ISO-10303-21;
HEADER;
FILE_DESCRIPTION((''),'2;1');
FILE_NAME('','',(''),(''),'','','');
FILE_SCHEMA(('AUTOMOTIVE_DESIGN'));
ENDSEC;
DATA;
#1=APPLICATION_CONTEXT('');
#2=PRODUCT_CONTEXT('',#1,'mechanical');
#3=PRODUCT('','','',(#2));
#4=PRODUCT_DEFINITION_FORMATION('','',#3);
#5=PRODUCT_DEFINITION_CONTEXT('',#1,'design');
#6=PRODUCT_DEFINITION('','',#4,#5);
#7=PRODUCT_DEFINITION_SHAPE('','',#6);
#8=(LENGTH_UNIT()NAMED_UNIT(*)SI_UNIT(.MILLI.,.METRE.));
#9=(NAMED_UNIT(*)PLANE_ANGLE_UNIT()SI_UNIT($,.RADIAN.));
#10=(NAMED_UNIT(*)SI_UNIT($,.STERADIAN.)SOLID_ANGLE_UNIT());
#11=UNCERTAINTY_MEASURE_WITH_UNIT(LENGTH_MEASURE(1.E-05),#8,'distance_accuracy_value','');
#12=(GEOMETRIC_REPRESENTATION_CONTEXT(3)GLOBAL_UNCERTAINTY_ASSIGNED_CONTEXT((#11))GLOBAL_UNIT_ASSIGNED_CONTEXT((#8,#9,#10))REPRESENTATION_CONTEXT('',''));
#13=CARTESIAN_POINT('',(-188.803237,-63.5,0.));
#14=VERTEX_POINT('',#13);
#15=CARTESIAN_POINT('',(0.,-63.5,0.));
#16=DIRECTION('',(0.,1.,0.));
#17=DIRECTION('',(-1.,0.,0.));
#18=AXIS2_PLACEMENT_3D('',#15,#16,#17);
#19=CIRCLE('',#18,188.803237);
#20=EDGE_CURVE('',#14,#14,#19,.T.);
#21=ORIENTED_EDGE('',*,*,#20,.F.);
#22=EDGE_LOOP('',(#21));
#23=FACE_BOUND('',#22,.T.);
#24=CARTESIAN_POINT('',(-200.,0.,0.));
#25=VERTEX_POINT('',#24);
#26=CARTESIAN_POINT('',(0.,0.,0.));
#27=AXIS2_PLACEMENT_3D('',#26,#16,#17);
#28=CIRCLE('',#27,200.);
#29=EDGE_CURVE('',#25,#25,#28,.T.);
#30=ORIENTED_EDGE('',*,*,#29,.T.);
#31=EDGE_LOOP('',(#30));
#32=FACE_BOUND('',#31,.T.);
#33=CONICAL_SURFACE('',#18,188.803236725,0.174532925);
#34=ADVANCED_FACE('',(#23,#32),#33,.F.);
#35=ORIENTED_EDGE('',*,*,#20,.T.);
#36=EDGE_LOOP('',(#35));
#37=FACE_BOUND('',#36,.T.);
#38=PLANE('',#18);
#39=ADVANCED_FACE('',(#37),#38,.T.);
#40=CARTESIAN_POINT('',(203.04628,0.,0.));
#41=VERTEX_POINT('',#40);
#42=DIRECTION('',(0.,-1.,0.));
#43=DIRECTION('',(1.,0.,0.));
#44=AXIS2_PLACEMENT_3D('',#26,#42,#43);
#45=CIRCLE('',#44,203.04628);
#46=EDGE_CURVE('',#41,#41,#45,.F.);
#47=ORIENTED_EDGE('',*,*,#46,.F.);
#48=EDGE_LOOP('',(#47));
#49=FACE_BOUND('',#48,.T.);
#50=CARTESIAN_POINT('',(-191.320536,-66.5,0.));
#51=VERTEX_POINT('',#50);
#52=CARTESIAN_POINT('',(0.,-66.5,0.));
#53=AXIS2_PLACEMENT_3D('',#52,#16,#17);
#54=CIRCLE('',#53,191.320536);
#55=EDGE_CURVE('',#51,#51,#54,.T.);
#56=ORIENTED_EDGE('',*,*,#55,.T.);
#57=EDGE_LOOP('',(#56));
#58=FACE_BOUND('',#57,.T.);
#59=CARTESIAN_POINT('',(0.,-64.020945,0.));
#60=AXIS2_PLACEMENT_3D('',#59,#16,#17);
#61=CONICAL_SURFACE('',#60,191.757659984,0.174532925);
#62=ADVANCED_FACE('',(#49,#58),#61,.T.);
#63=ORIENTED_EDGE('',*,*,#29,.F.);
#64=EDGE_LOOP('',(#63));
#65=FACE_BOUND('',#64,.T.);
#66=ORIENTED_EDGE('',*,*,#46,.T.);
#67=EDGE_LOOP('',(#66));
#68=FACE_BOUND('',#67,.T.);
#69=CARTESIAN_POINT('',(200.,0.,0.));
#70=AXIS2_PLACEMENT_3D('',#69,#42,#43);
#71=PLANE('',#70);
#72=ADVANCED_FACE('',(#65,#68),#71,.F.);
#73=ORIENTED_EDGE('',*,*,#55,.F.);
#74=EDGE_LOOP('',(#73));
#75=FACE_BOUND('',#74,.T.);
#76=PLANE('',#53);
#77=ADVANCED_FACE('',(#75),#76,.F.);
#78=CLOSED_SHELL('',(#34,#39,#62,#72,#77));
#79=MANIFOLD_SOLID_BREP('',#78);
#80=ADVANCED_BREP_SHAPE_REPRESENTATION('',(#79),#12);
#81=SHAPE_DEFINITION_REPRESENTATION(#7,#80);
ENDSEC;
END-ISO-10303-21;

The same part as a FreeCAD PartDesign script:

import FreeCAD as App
import Part
import Sketcher
Q = App.Units.Quantity


def faces_at(feature, points):
    """Names of the faces that lie closest to the given points."""
    faces = feature.Shape.Faces
    near = lambda p: min(range(len(faces)), key=lambda i: faces[i].distToShape(Part.Vertex(*p))[0])
    return sorted({f"Face{near(p) + 1}" for p in points})

doc = App.newDocument("Part")
params = doc.addObject("Spreadsheet::Sheet", "Params")
for row, (alias, value) in enumerate([
    ("sketch1_width", "200 mm"),
    ("sketch1_height", "63.5 mm"),
    ("revolution_angle", "360 deg"),
    ("thickness_wall", "3 mm"),
], start=1):
    params.set(f"A{row}", alias)
    params.set(f"B{row}", "=" + value)
    params.setAlias(f"B{row}", alias)

body = doc.addObject("PartDesign::Body", "Body")

# Sketch on XY plane
sketch1 = body.newObject("Sketcher::SketchObject", "Sketch")
sketch1.AttachmentSupport = (doc.getObject("XY_Plane"), [""])
sketch1.MapMode = "FlatFace"
sketch1.addGeometry(Part.LineSegment(App.Vector(0, 0, 0), App.Vector(0, -64, 0)), False)
sketch1.addGeometry(Part.LineSegment(App.Vector(0, -64, 0), App.Vector(189, -64, 0)), False)
sketch1.addGeometry(Part.LineSegment(App.Vector(189, -64, 0), App.Vector(200, 0, 0)), False)
sketch1.addGeometry(Part.LineSegment(App.Vector(200, 0, 0), App.Vector(0, 0, 0)), False)
sketch1.addConstraint(Sketcher.Constraint("Coincident", 0, 2, 1, 1))
sketch1.addConstraint(Sketcher.Constraint("Coincident", 1, 2, 2, 1))
sketch1.addConstraint(Sketcher.Constraint("Coincident", 2, 2, 3, 1))
sketch1.addConstraint(Sketcher.Constraint("Coincident", 3, 2, 0, 1))
sketch1.addConstraint(Sketcher.Constraint("Vertical", 0))
sketch1.addConstraint(Sketcher.Constraint("Horizontal", 1))
sketch1.addConstraint(Sketcher.Constraint("Horizontal", 3))
sketch1.addConstraint(Sketcher.Constraint("Coincident", 3, 2, -1, 1))
sketch1.addConstraint(Sketcher.Constraint("DistanceX", 3, 2, 3, 1, Q("200 mm")))
sketch1.addConstraint(Sketcher.Constraint("Angle", 2, Q("80 deg")))
sketch1.addConstraint(Sketcher.Constraint("DistanceY", 0, 2, 0, 1, Q("63.5 mm")))
sketch1.setExpression("Constraints[8]", "Params.sketch1_width")
sketch1.setExpression("Constraints[10]", "Params.sketch1_height")
revolution = body.newObject("PartDesign::Revolution", "Revolution")
revolution.Profile = sketch1
revolution.ReferenceAxis = (sketch1, ["V_Axis"])
revolution.setExpression("Angle", "Params.revolution_angle")
doc.recompute()

thickness = body.newObject("PartDesign::Thickness", "Thickness")
thickness.Base = (revolution, faces_at(revolution, [(0, 0, 0)]))
thickness.setExpression("Value", "Params.thickness_wall")
thickness.Reversed = False
thickness.Join = "Intersection"

doc.recompute()
